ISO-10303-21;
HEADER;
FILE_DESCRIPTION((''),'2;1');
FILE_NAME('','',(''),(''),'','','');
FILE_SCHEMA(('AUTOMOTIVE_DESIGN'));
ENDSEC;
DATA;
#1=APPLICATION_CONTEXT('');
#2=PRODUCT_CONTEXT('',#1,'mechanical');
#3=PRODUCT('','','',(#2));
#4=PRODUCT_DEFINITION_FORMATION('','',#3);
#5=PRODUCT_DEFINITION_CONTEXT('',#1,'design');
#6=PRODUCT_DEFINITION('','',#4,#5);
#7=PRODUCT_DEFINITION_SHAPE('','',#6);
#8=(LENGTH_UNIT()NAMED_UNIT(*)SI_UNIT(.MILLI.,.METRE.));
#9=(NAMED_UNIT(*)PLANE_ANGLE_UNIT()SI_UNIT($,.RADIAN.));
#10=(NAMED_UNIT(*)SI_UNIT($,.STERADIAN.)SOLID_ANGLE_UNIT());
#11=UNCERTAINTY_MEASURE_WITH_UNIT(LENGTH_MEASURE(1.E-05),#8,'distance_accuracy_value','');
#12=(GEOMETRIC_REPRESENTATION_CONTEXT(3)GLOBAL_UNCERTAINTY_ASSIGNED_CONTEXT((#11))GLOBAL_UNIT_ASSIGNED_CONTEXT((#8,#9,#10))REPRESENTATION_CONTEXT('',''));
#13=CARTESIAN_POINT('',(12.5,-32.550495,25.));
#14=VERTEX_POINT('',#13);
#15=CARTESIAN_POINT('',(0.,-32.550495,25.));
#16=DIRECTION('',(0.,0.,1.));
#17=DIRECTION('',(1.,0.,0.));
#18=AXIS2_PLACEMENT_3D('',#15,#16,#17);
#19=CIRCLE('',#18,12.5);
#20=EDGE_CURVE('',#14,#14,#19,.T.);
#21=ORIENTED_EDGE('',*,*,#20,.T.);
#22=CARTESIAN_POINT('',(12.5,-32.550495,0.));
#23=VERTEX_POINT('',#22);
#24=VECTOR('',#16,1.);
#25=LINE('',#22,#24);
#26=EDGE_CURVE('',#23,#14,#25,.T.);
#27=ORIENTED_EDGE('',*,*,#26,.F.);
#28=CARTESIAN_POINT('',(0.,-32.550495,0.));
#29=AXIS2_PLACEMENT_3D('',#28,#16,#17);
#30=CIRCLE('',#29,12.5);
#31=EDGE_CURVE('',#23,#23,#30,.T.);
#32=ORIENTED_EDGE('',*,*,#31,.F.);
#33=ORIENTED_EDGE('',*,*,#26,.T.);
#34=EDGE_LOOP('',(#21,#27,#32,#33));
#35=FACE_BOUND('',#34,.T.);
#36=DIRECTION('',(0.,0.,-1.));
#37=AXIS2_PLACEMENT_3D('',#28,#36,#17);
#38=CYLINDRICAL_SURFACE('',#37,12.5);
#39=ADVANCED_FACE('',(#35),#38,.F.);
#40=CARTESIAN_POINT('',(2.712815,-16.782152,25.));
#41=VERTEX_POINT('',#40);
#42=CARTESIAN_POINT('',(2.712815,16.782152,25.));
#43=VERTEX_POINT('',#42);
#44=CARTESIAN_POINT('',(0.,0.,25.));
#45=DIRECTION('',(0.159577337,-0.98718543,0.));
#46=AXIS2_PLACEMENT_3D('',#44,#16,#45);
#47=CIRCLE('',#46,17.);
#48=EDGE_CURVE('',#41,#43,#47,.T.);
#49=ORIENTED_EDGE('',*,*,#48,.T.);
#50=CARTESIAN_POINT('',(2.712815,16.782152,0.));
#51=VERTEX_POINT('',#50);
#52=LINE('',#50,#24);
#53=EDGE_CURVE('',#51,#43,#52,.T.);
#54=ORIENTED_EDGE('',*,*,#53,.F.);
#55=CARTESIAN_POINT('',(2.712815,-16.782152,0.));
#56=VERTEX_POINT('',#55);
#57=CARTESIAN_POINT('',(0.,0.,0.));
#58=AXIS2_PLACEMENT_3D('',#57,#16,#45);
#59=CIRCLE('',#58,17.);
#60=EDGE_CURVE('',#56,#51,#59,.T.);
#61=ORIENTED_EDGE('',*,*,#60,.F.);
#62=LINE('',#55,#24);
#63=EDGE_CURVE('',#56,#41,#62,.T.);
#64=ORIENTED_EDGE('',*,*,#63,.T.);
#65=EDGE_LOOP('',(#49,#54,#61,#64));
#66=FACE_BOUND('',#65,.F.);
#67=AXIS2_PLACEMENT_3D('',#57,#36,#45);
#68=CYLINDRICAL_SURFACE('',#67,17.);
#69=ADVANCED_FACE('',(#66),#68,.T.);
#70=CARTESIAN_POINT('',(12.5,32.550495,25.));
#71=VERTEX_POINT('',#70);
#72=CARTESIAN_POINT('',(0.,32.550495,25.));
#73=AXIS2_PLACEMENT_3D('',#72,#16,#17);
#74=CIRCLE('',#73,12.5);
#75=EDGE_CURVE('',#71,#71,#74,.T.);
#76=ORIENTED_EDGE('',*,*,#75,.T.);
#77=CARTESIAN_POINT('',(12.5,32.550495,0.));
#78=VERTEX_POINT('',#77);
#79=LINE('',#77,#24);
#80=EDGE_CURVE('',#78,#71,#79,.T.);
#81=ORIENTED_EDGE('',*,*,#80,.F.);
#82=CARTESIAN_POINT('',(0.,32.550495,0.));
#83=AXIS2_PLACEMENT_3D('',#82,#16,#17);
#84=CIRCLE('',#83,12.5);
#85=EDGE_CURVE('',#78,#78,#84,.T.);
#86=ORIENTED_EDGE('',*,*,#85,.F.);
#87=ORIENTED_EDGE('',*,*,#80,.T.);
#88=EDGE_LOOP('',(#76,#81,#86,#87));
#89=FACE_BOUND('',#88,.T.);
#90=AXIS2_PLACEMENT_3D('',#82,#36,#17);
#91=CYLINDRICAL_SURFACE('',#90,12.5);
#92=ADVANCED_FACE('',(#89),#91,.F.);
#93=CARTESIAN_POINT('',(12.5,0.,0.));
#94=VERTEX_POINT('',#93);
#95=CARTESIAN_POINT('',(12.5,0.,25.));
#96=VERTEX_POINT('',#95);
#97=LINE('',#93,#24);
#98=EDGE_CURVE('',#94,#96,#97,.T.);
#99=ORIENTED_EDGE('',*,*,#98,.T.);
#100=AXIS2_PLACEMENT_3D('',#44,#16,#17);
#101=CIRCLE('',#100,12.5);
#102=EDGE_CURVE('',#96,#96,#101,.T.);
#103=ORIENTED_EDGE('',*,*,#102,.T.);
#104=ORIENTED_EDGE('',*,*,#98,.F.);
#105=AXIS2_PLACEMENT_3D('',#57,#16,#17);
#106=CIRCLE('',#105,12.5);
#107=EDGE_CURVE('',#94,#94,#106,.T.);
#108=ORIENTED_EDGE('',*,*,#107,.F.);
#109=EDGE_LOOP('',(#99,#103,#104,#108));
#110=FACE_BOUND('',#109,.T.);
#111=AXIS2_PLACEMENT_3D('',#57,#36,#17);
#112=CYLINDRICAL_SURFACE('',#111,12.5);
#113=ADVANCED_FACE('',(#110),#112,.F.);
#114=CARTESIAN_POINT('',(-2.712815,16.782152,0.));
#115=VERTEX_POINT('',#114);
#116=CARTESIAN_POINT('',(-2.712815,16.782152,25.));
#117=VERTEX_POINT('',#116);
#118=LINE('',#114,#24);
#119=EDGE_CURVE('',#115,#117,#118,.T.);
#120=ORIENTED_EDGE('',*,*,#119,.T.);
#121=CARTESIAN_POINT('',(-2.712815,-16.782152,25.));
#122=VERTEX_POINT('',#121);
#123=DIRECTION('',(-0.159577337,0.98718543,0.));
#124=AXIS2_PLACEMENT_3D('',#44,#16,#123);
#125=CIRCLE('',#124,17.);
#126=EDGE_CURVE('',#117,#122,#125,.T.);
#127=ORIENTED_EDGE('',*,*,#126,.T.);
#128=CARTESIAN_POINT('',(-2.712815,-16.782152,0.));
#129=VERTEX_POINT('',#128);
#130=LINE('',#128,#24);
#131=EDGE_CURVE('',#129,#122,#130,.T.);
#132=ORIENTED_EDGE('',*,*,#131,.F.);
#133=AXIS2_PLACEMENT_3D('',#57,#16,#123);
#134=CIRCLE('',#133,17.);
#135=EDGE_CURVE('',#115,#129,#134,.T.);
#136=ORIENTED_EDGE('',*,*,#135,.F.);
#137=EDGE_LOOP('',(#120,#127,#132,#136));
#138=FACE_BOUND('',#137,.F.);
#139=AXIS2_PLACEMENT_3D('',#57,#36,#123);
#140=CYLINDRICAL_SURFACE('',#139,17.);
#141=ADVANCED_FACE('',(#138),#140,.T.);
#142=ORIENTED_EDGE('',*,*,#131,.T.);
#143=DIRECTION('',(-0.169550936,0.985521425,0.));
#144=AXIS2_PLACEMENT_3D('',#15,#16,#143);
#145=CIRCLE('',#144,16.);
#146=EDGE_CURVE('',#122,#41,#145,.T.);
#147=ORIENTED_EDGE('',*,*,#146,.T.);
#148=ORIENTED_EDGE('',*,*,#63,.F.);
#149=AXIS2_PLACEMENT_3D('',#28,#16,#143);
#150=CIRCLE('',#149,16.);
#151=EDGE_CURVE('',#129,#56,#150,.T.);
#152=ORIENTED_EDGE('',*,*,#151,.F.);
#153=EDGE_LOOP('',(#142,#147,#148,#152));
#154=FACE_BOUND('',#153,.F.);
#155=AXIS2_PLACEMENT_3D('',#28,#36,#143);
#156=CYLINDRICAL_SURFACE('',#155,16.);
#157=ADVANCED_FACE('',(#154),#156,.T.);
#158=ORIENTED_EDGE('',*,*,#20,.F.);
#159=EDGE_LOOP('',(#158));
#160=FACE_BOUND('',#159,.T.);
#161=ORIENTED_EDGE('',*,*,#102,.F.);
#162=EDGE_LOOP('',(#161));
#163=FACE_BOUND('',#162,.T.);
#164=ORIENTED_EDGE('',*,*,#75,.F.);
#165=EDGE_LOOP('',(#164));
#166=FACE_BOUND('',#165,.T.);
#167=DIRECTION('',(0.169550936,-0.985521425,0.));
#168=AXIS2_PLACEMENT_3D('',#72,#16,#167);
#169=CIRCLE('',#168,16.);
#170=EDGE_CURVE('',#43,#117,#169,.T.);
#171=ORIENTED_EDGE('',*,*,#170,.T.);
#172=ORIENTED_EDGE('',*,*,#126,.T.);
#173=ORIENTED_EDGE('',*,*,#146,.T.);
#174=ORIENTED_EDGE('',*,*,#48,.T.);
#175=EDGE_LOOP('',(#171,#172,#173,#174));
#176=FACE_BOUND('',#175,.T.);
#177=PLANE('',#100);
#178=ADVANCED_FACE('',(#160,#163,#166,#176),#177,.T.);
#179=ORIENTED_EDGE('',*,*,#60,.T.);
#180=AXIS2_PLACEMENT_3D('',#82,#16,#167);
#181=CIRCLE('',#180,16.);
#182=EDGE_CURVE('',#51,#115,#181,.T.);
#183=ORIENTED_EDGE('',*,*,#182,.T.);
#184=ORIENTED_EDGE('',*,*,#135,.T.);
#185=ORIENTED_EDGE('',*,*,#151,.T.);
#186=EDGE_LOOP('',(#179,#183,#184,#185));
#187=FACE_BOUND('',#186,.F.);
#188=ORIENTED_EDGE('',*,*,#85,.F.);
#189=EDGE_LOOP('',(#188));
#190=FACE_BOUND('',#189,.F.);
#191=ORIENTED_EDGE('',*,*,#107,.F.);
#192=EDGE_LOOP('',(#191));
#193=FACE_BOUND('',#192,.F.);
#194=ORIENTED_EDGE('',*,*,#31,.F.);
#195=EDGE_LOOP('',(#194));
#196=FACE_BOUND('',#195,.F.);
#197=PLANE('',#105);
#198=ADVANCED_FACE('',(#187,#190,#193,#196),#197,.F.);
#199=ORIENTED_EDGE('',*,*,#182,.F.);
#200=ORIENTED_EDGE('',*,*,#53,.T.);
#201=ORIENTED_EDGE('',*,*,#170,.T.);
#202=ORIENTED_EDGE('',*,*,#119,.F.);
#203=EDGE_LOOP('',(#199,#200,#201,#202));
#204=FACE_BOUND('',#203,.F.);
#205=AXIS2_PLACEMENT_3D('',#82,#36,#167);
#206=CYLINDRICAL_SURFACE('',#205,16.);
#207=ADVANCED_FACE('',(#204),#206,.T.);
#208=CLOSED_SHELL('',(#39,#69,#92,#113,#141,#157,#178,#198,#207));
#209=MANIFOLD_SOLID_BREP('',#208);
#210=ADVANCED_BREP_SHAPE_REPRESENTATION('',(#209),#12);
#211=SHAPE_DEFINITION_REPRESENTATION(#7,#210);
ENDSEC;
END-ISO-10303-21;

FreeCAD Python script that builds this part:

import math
import FreeCAD as App
import Part
import Sketcher

V = App.Vector
Q = App.Units.Quantity

doc = App.newDocument("Part")
body = doc.addObject("PartDesign::Body", "Body")

# Sketch on XY plane
sketch1 = body.newObject("Sketcher::SketchObject", "Sketch")
sketch1.AttachmentSupport = (doc.getObject("XY_Plane"), [""])
sketch1.MapMode = "FlatFace"
sketch1.addGeometry(Part.ArcOfCircle(Part.Circle(V(0, 0, 0), V(0, 0, 1), 17), math.radians(99.182364), math.radians(260.817636)), False)
sketch1.addGeometry(Part.ArcOfCircle(Part.Circle(V(0, -32.550495, 0), V(0, 0, 1), 16), math.radians(99.761711), math.radians(440.238289)), False)
sketch1.addGeometry(Part.ArcOfCircle(Part.Circle(V(0, 0, 0), V(0, 0, 1), 17), math.radians(-80.817636), math.radians(80.817636)), False)
sketch1.addGeometry(Part.ArcOfCircle(Part.Circle(V(0, 32.550495, 0), V(0, 0, 1), 16), math.radians(-80.238289), math.radians(260.238289)), False)
sketch1.addGeometry(Part.Circle(V(0, -32.550495, 0), V(0, 0, 1), 12.5), False)
sketch1.addGeometry(Part.Circle(V(0, 0, 0), V(0, 0, 1), 12.5), False)
sketch1.addGeometry(Part.Circle(V(0, 32.550495, 0), V(0, 0, 1), 12.5), False)
sketch1.addConstraint(Sketcher.Constraint("Coincident", 0, 2, 1, 1))
sketch1.addConstraint(Sketcher.Constraint("Coincident", 1, 2, 2, 1))
sketch1.addConstraint(Sketcher.Constraint("Coincident", 2, 2, 3, 1))
sketch1.addConstraint(Sketcher.Constraint("Coincident", 3, 2, 0, 1))
sketch1.addConstraint(Sketcher.Constraint("Coincident", 0, 3, -1, 1))
sketch1.addConstraint(Sketcher.Constraint("Coincident", 2, 3, -1, 1))
sketch1.addConstraint(Sketcher.Constraint("Coincident", 5, 3, -1, 1))
sketch1.addConstraint(Sketcher.Constraint("Coincident", 4, 3, 1, 3))
sketch1.addConstraint(Sketcher.Constraint("Coincident", 6, 3, 3, 3))
sketch1.addConstraint(Sketcher.Constraint("Equal", 0, 2))
sketch1.addConstraint(Sketcher.Constraint("Equal", 1, 3))
sketch1.addConstraint(Sketcher.Constraint("Equal", 4, 5))
sketch1.addConstraint(Sketcher.Constraint("Equal", 5, 6))
sketch1.addConstraint(Sketcher.Constraint("Symmetric", 1, 3, 3, 3, -1, 1))
sketch1.addConstraint(Sketcher.Constraint("PointOnObject", 1, 3, -2))
sketch1.addConstraint(Sketcher.Constraint("Diameter", 4, Q("25 mm")))
sketch1.addConstraint(Sketcher.Constraint("Radius", 0, Q("17 mm")))
sketch1.addConstraint(Sketcher.Constraint("Radius", 1, Q("16 mm")))
sketch1.addConstraint(Sketcher.Constraint("DistanceY", 0, 2, -1, 1, Q("16.782152 mm")))
pad1 = body.newObject("PartDesign::Pad", "Pad")
pad1.Profile = sketch1
pad1.Length = 25

doc.recompute()
